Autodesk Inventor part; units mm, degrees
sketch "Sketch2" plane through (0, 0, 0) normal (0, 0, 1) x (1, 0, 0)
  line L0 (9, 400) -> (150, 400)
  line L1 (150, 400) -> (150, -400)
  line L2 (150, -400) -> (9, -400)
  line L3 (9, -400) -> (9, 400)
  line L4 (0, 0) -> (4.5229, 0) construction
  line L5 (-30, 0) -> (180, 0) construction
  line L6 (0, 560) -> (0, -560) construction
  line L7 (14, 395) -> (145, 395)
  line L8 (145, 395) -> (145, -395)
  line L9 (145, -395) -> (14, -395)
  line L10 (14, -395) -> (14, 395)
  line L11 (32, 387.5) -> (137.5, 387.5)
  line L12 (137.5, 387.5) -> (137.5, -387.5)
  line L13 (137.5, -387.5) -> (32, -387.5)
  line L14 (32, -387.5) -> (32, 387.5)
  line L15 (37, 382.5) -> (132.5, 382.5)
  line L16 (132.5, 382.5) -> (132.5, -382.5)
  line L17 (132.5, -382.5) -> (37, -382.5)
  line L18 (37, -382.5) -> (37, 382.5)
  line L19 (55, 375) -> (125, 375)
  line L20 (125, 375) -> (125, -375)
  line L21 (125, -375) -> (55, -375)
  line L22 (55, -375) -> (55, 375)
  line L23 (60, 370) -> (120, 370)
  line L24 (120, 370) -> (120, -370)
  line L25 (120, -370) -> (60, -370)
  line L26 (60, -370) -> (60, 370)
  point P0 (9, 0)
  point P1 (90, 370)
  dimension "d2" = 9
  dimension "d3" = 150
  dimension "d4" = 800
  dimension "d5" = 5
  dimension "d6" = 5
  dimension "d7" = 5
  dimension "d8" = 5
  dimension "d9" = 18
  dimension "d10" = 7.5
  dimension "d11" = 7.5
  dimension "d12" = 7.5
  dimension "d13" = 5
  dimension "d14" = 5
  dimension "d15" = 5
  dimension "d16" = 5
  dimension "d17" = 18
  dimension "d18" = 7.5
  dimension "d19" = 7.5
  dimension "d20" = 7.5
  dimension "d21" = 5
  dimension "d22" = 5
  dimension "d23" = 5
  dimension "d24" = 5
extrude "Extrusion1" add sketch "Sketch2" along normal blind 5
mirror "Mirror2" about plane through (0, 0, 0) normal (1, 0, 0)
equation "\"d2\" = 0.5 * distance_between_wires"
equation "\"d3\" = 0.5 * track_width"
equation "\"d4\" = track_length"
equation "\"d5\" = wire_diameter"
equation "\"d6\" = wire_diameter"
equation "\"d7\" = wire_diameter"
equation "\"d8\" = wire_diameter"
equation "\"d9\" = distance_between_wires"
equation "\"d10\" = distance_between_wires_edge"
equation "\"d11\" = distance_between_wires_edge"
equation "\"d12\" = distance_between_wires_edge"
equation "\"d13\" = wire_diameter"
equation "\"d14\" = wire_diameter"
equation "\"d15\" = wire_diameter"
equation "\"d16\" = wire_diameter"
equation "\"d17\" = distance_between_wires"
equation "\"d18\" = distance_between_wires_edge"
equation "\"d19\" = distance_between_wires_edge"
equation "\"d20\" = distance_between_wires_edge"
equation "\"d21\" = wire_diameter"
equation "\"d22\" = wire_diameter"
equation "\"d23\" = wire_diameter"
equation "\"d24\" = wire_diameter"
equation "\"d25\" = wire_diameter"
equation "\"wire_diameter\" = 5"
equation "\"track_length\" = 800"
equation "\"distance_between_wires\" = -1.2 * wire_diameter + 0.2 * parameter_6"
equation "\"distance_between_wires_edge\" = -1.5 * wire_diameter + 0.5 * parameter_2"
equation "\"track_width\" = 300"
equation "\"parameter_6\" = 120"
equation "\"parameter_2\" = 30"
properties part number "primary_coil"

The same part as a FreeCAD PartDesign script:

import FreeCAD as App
import Part
import Sketcher

doc = App.newDocument("Part")
body = doc.addObject("PartDesign::Body", "Body")
body.AllowCompound = True

# Sketch on XY plane
sketch1 = body.newObject("Sketcher::SketchObject", "Sketch")
sketch1.AttachmentSupport = (doc.getObject("XY_Plane"), [""])
sketch1.MapMode = "FlatFace"
sketch1.addGeometry(Part.LineSegment(App.Vector(150, 400, 0), App.Vector(9, 400, 0)), False)
sketch1.addGeometry(Part.LineSegment(App.Vector(9, 400, 0), App.Vector(9, -400, 0)), False)
sketch1.addGeometry(Part.LineSegment(App.Vector(9, -400, 0), App.Vector(150, -400, 0)), False)
sketch1.addGeometry(Part.LineSegment(App.Vector(150, -400, 0), App.Vector(150, 400, 0)), False)
sketch1.addGeometry(Part.LineSegment(App.Vector(14, -395, 0), App.Vector(14, 395, 0)), False)
sketch1.addGeometry(Part.LineSegment(App.Vector(14, 395, 0), App.Vector(145, 395, 0)), False)
sketch1.addGeometry(Part.LineSegment(App.Vector(145, 395, 0), App.Vector(145, -395, 0)), False)
sketch1.addGeometry(Part.LineSegment(App.Vector(145, -395, 0), App.Vector(14, -395, 0)), False)
sketch1.addGeometry(Part.LineSegment(App.Vector(138, 388, 0), App.Vector(32, 388, 0)), False)
sketch1.addGeometry(Part.LineSegment(App.Vector(32, 388, 0), App.Vector(32, -388, 0)), False)
sketch1.addGeometry(Part.LineSegment(App.Vector(32, -388, 0), App.Vector(138, -388, 0)), False)
sketch1.addGeometry(Part.LineSegment(App.Vector(138, -388, 0), App.Vector(138, 388, 0)), False)
sketch1.addGeometry(Part.LineSegment(App.Vector(37, -382, 0), App.Vector(37, 382, 0)), False)
sketch1.addGeometry(Part.LineSegment(App.Vector(37, 382, 0), App.Vector(132, 382, 0)), False)
sketch1.addGeometry(Part.LineSegment(App.Vector(132, 382, 0), App.Vector(132, -382, 0)), False)
sketch1.addGeometry(Part.LineSegment(App.Vector(132, -382, 0), App.Vector(37, -382, 0)), False)
sketch1.addGeometry(Part.LineSegment(App.Vector(125, 375, 0), App.Vector(55, 375, 0)), False)
sketch1.addGeometry(Part.LineSegment(App.Vector(55, 375, 0), App.Vector(55, -375, 0)), False)
sketch1.addGeometry(Part.LineSegment(App.Vector(55, -375, 0), App.Vector(125, -375, 0)), False)
sketch1.addGeometry(Part.LineSegment(App.Vector(125, -375, 0), App.Vector(125, 375, 0)), False)
sketch1.addGeometry(Part.LineSegment(App.Vector(60, -370, 0), App.Vector(60, 370, 0)), False)
sketch1.addGeometry(Part.LineSegment(App.Vector(60, 370, 0), App.Vector(120, 370, 0)), False)
sketch1.addGeometry(Part.LineSegment(App.Vector(120, 370, 0), App.Vector(120, -370, 0)), False)
sketch1.addGeometry(Part.LineSegment(App.Vector(120, -370, 0), App.Vector(60, -370, 0)), False)
sketch1.addConstraint(Sketcher.Constraint("Coincident", 0, 2, 1, 1))
sketch1.addConstraint(Sketcher.Constraint("Coincident", 1, 2, 2, 1))
sketch1.addConstraint(Sketcher.Constraint("Coincident", 2, 2, 3, 1))
sketch1.addConstraint(Sketcher.Constraint("Coincident", 3, 2, 0, 1))
sketch1.addConstraint(Sketcher.Constraint("Coincident", 4, 2, 5, 1))
sketch1.addConstraint(Sketcher.Constraint("Coincident", 5, 2, 6, 1))
sketch1.addConstraint(Sketcher.Constraint("Coincident", 6, 2, 7, 1))
sketch1.addConstraint(Sketcher.Constraint("Coincident", 7, 2, 4, 1))
sketch1.addConstraint(Sketcher.Constraint("Coincident", 8, 2, 9, 1))
sketch1.addConstraint(Sketcher.Constraint("Coincident", 9, 2, 10, 1))
sketch1.addConstraint(Sketcher.Constraint("Coincident", 10, 2, 11, 1))
sketch1.addConstraint(Sketcher.Constraint("Coincident", 11, 2, 8, 1))
sketch1.addConstraint(Sketcher.Constraint("Coincident", 12, 2, 13, 1))
sketch1.addConstraint(Sketcher.Constraint("Coincident", 13, 2, 14, 1))
sketch1.addConstraint(Sketcher.Constraint("Coincident", 14, 2, 15, 1))
sketch1.addConstraint(Sketcher.Constraint("Coincident", 15, 2, 12, 1))
sketch1.addConstraint(Sketcher.Constraint("Coincident", 16, 2, 17, 1))
sketch1.addConstraint(Sketcher.Constraint("Coincident", 17, 2, 18, 1))
sketch1.addConstraint(Sketcher.Constraint("Coincident", 18, 2, 19, 1))
sketch1.addConstraint(Sketcher.Constraint("Coincident", 19, 2, 16, 1))
sketch1.addConstraint(Sketcher.Constraint("Coincident", 20, 2, 21, 1))
sketch1.addConstraint(Sketcher.Constraint("Coincident", 21, 2, 22, 1))
sketch1.addConstraint(Sketcher.Constraint("Coincident", 22, 2, 23, 1))
sketch1.addConstraint(Sketcher.Constraint("Coincident", 23, 2, 20, 1))
sketch1.addConstraint(Sketcher.Constraint("Horizontal", 0))
sketch1.addConstraint(Sketcher.Constraint("Vertical", 1))
sketch1.addConstraint(Sketcher.Constraint("Horizontal", 2))
sketch1.addConstraint(Sketcher.Constraint("Vertical", 3))
sketch1.addConstraint(Sketcher.Constraint("Vertical", 4))
sketch1.addConstraint(Sketcher.Constraint("Horizontal", 5))
sketch1.addConstraint(Sketcher.Constraint("Vertical", 6))
sketch1.addConstraint(Sketcher.Constraint("Horizontal", 7))
sketch1.addConstraint(Sketcher.Constraint("Horizontal", 8))
sketch1.addConstraint(Sketcher.Constraint("Vertical", 9))
sketch1.addConstraint(Sketcher.Constraint("Horizontal", 10))
sketch1.addConstraint(Sketcher.Constraint("Vertical", 11))
sketch1.addConstraint(Sketcher.Constraint("Vertical", 12))
sketch1.addConstraint(Sketcher.Constraint("Horizontal", 13))
sketch1.addConstraint(Sketcher.Constraint("Vertical", 14))
sketch1.addConstraint(Sketcher.Constraint("Horizontal", 15))
sketch1.addConstraint(Sketcher.Constraint("Horizontal", 16))
sketch1.addConstraint(Sketcher.Constraint("Vertical", 17))
sketch1.addConstraint(Sketcher.Constraint("Horizontal", 18))
sketch1.addConstraint(Sketcher.Constraint("Vertical", 19))
sketch1.addConstraint(Sketcher.Constraint("Vertical", 20))
sketch1.addConstraint(Sketcher.Constraint("Horizontal", 21))
sketch1.addConstraint(Sketcher.Constraint("Vertical", 22))
sketch1.addConstraint(Sketcher.Constraint("Horizontal", 23))
sketch1.addConstraint(Sketcher.Constraint("DistanceY", 1, 2, 1, 1, 800.0))
sketch1.addConstraint(Sketcher.Constraint("DistanceX", -1, 1, 0, 2, 9.0))
sketch1.addConstraint(Sketcher.Constraint("DistanceX", -1, 1, 2, 2, 150.0))
sketch1.addConstraint(Sketcher.Constraint("DistanceX", 0, 2, 4, 2, 5.0))
sketch1.addConstraint(Sketcher.Constraint("DistanceY", 4, 2, 0, 2, 5.0))
sketch1.addConstraint(Sketcher.Constraint("DistanceX", 5, 2, 3, 2, 5.0))
sketch1.addConstraint(Sketcher.Constraint("DistanceY", 2, 2, 6, 2, 5.0))
sketch1.addConstraint(Sketcher.Constraint("DistanceX", 4, 2, 8, 2, 18.0))
sketch1.addConstraint(Sketcher.Constraint("DistanceX", 8, 2, 12, 2, 5.0))
sketch1.addConstraint(Sketcher.Constraint("DistanceY", 12, 2, 8, 2, 5.0))
sketch1.addConstraint(Sketcher.Constraint("DistanceX", 13, 2, 11, 2, 5.0))
sketch1.addConstraint(Sketcher.Constraint("DistanceY", 10, 2, 14, 2, 5.0))
sketch1.addConstraint(Sketcher.Constraint("DistanceX", 12, 2, 16, 2, 18.0))
sketch1.addConstraint(Sketcher.Constraint("DistanceX", 16, 2, 20, 2, 5.0))
sketch1.addConstraint(Sketcher.Constraint("DistanceY", 20, 2, 16, 2, 5.0))
sketch1.addConstraint(Sketcher.Constraint("DistanceX", 21, 2, 19, 2, 5.0))
sketch1.addConstraint(Sketcher.Constraint("DistanceY", 18, 2, 22, 2, 5.0))
sketch1.addConstraint(Sketcher.Constraint("DistanceY", 8, 2, 4, 2, 7.5))
sketch1.addConstraint(Sketcher.Constraint("DistanceY", 7, 2, 9, 2, 7.5))
sketch1.addConstraint(Sketcher.Constraint("DistanceX", 10, 2, 6, 2, 7.5))
sketch1.addConstraint(Sketcher.Constraint("DistanceY", 16, 2, 12, 2, 7.5))
sketch1.addConstraint(Sketcher.Constraint("DistanceY", 15, 2, 17, 2, 7.5))
sketch1.addConstraint(Sketcher.Constraint("DistanceX", 18, 2, 14, 2, 7.5))
sketch1.addConstraint(Sketcher.Constraint("DistanceY", -1, 1, 0, 2, 400.0))
pad1 = body.newObject("PartDesign::Pad", "Pad")
pad1.Profile = sketch1
pad1.Length = 5
doc.recompute()

mirrored = body.newObject("PartDesign::Mirrored", "Mirrored")
mirrored.TransformMode = "Transform body"
mirrored.MirrorPlane = (doc.getObject("YZ_Plane"), [""])
body.Tip = mirrored

doc.recompute()
